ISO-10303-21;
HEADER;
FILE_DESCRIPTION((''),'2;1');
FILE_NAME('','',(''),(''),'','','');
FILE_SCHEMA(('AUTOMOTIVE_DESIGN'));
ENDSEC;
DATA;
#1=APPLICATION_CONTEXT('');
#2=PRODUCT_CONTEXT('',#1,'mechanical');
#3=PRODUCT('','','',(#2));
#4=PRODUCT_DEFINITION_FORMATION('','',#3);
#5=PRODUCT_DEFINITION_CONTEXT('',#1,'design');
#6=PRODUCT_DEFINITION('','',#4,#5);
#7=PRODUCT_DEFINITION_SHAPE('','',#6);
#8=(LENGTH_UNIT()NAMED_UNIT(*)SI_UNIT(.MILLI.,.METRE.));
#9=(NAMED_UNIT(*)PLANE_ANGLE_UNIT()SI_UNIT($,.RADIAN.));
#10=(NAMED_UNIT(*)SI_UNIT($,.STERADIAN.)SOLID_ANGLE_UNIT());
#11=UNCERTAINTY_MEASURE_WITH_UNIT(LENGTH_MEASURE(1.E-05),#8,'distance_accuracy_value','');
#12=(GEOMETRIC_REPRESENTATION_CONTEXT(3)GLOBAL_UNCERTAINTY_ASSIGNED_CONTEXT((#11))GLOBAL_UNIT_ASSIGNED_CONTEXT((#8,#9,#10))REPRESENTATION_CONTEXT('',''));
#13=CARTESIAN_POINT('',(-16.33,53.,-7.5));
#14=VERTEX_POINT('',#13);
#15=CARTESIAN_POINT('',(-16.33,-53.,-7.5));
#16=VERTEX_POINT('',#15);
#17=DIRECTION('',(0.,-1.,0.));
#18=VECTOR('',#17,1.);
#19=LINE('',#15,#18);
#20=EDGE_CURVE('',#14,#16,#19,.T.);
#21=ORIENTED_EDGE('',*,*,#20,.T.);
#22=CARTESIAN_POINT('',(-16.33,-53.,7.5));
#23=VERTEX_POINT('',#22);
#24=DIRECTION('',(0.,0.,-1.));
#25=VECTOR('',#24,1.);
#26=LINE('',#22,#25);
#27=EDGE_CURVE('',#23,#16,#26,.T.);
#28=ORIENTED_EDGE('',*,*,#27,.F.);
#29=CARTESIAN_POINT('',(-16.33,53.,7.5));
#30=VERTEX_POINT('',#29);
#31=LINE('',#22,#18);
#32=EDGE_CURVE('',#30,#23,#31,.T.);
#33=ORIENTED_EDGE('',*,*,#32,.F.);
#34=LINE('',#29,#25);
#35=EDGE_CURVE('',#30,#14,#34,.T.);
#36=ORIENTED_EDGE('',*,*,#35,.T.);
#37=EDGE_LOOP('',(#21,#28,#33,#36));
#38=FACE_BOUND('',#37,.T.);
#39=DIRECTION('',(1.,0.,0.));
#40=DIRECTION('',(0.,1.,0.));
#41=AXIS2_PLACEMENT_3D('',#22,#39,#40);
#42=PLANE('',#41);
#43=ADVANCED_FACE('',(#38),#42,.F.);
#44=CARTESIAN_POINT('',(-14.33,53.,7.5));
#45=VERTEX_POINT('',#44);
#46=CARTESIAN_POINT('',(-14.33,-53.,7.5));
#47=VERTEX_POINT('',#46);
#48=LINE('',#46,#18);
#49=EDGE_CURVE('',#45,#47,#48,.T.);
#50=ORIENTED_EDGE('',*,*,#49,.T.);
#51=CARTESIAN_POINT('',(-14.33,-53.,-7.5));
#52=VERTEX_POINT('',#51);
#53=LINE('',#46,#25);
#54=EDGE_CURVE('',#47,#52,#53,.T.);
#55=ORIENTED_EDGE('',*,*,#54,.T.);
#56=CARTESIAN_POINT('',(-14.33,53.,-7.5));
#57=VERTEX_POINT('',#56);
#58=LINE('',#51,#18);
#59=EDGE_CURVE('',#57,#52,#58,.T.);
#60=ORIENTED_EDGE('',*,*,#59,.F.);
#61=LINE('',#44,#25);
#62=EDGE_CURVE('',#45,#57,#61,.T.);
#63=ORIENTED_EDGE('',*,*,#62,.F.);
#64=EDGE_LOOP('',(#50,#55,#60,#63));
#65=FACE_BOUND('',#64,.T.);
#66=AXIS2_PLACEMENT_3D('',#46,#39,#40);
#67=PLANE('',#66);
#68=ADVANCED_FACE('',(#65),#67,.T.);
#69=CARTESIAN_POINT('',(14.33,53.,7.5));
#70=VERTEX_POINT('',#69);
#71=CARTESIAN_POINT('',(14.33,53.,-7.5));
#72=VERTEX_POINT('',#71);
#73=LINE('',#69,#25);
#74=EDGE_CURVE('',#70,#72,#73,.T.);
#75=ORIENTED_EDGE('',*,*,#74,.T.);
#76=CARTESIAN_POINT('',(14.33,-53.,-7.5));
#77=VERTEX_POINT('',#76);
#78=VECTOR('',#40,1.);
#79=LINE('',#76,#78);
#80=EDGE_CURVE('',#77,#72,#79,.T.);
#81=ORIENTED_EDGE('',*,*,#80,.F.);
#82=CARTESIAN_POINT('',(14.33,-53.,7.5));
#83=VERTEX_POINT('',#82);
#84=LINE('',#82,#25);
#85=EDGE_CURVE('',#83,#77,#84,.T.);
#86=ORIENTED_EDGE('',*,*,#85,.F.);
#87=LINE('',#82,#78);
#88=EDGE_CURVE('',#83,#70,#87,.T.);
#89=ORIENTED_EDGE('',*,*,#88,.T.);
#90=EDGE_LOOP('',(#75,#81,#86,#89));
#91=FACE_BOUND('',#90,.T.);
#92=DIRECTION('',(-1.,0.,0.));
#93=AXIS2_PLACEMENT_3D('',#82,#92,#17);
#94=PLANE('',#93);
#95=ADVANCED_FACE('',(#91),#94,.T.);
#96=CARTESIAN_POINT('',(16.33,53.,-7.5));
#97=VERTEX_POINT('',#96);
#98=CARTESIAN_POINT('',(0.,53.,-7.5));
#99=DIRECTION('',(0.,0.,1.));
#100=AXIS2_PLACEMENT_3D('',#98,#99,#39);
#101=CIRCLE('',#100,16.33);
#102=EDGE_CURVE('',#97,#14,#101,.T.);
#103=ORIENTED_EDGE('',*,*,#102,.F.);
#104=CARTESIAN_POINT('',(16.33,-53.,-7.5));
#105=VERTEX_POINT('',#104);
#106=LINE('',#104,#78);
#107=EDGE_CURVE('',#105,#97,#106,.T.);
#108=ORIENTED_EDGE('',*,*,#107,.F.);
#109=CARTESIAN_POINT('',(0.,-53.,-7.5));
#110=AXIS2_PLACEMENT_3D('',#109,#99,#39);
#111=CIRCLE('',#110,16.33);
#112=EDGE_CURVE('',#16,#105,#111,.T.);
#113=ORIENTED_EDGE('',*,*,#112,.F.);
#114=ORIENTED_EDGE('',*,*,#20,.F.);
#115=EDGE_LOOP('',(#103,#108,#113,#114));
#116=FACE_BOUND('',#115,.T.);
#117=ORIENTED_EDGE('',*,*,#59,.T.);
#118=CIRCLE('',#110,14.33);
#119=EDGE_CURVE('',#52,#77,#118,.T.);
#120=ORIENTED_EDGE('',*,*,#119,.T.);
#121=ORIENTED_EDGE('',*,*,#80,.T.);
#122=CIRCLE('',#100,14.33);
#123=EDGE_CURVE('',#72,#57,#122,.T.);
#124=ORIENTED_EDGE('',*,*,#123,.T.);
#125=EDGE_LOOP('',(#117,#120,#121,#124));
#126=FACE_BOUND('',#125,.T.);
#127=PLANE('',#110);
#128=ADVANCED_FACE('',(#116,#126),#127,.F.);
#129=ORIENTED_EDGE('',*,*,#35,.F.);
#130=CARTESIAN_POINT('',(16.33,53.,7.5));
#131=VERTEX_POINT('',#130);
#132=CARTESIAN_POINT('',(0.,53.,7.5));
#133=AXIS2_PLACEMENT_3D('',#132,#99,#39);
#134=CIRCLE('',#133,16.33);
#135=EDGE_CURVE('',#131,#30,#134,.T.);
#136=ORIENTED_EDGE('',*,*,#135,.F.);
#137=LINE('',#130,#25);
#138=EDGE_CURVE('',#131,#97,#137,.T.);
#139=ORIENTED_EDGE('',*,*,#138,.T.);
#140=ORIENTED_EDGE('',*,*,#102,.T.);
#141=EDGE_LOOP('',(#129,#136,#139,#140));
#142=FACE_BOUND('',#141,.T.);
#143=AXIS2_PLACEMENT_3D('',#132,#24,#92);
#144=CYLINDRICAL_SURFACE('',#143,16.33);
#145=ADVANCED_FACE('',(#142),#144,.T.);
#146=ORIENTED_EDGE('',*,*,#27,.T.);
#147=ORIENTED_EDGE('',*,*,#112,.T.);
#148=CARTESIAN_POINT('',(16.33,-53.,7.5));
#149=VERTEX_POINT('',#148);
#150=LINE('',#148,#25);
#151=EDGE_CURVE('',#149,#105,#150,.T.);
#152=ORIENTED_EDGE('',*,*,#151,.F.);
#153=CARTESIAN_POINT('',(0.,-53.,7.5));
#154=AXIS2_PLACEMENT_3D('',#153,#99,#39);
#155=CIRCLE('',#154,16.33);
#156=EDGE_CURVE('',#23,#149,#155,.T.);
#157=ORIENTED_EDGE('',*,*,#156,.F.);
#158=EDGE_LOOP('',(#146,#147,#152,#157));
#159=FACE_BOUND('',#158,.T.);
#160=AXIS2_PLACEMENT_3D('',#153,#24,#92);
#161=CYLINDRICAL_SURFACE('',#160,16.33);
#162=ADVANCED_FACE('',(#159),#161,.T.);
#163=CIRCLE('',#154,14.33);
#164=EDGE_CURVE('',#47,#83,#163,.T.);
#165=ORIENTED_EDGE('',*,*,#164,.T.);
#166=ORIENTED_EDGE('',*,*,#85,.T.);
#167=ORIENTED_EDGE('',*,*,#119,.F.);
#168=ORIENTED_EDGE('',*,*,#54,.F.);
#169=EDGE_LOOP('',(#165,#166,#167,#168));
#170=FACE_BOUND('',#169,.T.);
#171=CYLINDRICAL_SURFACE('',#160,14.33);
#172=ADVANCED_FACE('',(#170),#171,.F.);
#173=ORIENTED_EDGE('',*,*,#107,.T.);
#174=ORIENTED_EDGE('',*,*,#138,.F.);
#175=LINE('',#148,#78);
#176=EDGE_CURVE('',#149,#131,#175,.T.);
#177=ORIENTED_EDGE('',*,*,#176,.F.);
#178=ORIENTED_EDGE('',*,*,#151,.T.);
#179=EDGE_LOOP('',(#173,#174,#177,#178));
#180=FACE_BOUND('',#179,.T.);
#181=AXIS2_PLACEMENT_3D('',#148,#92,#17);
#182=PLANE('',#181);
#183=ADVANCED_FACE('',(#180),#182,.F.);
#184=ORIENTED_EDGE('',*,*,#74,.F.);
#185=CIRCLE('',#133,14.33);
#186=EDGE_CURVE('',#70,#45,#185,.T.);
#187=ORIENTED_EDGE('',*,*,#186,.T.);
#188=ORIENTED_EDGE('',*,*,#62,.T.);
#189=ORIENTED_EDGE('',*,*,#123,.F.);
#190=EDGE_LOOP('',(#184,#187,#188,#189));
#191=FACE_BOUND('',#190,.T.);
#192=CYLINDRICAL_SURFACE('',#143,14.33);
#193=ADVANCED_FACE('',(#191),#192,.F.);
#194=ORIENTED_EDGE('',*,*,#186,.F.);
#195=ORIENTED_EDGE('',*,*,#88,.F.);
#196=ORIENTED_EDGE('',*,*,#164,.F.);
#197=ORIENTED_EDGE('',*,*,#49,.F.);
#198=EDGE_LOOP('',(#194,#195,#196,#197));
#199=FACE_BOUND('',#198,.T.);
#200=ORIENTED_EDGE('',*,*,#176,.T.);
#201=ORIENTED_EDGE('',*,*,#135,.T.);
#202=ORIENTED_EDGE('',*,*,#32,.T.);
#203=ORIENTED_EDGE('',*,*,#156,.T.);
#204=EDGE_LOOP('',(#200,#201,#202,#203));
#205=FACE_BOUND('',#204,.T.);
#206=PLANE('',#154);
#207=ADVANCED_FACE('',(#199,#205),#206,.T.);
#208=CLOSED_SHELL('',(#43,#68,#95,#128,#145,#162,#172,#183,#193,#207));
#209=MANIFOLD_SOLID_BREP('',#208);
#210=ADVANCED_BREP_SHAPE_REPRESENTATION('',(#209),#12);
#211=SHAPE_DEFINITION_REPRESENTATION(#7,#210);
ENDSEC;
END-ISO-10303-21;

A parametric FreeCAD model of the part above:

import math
import FreeCAD as App
import Part
import Sketcher
from FreeCAD import Vector
Q = App.Units.Quantity

doc = App.newDocument("Part")
params = doc.addObject("Spreadsheet::Sheet", "Params")
for row, (alias, value) in enumerate([
    ("sketch1_height", "106 mm"),
    ("sketch1_radius", "16.33 mm"),
    ("sketch1_radius2", "14.33 mm"),
    ("pad1_length", "15 mm"),
], start=1):
    params.set(f"A{row}", alias)
    params.set(f"B{row}", "=" + value)
    params.setAlias(f"B{row}", alias)

body = doc.addObject("PartDesign::Body", "Body")

# Sketch on XY plane
sketch1 = doc.addObject("Sketcher::SketchObject", "Sketch")
body.addObject(sketch1)
sketch1.AttachmentSupport = (doc.XY_Plane, [""])
sketch1.MapMode = "FlatFace"
sketch1.addGeometry(Part.LineSegment(Vector(16.33, -53, 0), Vector(16.33, 53, 0)), False)
sketch1.addGeometry(Part.ArcOfCircle(Part.Circle(Vector(0, 53, 0), Vector(0, 0, 1), 16.33), math.radians(0), math.radians(180)), False)
sketch1.addGeometry(Part.LineSegment(Vector(-16.33, 53, 0), Vector(-16.33, -53, 0)), False)
sketch1.addGeometry(Part.ArcOfCircle(Part.Circle(Vector(0, -53, 0), Vector(0, 0, 1), 16.33), math.radians(180), math.radians(360)), False)
sketch1.addGeometry(Part.LineSegment(Vector(14.33, 53, 0), Vector(14.33, -53, 0)), False)
sketch1.addGeometry(Part.ArcOfCircle(Part.Circle(Vector(0, -53, 0), Vector(0, 0, 1), 14.33), math.radians(180), math.radians(360)), False)
sketch1.addGeometry(Part.LineSegment(Vector(-14.33, -53, 0), Vector(-14.33, 53, 0)), False)
sketch1.addGeometry(Part.ArcOfCircle(Part.Circle(Vector(0, 53, 0), Vector(0, 0, 1), 14.33), math.radians(0), math.radians(180)), False)
sketch1.addConstraint(Sketcher.Constraint("Tangent", 0, 2, 1, 1))
sketch1.addConstraint(Sketcher.Constraint("Tangent", 1, 2, 2, 1))
sketch1.addConstraint(Sketcher.Constraint("Tangent", 2, 2, 3, 1))
sketch1.addConstraint(Sketcher.Constraint("Tangent", 3, 2, 0, 1))
sketch1.addConstraint(Sketcher.Constraint("Tangent", 4, 2, 5, 2))
sketch1.addConstraint(Sketcher.Constraint("Tangent", 5, 1, 6, 1))
sketch1.addConstraint(Sketcher.Constraint("Tangent", 6, 2, 7, 2))
sketch1.addConstraint(Sketcher.Constraint("Tangent", 7, 1, 4, 1))
sketch1.addConstraint(Sketcher.Constraint("Vertical", 0))
sketch1.addConstraint(Sketcher.Constraint("Vertical", 2))
sketch1.addConstraint(Sketcher.Constraint("Vertical", 4))
sketch1.addConstraint(Sketcher.Constraint("Vertical", 6))
sketch1.addConstraint(Sketcher.Constraint("Coincident", 5, 3, 3, 3))
sketch1.addConstraint(Sketcher.Constraint("Symmetric", 1, 3, 3, 3, -1, 1))
sketch1.addConstraint(Sketcher.Constraint("Horizontal", 7, 3, 0, 2))
sketch1.addConstraint(Sketcher.Constraint("DistanceY", 0, 1, 0, 2, Q("106 mm")))
sketch1.addConstraint(Sketcher.Constraint("Radius", 1, Q("16.33 mm")))
sketch1.addConstraint(Sketcher.Constraint("Radius", 5, Q("14.33 mm")))
sketch1.setExpression("Constraints[15]", "Params.sketch1_height")
sketch1.setExpression("Constraints[16]", "Params.sketch1_radius")
sketch1.setExpression("Constraints[17]", "Params.sketch1_radius2")
pad1 = doc.addObject("PartDesign::Pad", "Pad")
body.addObject(pad1)
pad1.Profile = sketch1
pad1.setExpression("Length", "Params.pad1_length")
pad1.Midplane = True

doc.recompute()
